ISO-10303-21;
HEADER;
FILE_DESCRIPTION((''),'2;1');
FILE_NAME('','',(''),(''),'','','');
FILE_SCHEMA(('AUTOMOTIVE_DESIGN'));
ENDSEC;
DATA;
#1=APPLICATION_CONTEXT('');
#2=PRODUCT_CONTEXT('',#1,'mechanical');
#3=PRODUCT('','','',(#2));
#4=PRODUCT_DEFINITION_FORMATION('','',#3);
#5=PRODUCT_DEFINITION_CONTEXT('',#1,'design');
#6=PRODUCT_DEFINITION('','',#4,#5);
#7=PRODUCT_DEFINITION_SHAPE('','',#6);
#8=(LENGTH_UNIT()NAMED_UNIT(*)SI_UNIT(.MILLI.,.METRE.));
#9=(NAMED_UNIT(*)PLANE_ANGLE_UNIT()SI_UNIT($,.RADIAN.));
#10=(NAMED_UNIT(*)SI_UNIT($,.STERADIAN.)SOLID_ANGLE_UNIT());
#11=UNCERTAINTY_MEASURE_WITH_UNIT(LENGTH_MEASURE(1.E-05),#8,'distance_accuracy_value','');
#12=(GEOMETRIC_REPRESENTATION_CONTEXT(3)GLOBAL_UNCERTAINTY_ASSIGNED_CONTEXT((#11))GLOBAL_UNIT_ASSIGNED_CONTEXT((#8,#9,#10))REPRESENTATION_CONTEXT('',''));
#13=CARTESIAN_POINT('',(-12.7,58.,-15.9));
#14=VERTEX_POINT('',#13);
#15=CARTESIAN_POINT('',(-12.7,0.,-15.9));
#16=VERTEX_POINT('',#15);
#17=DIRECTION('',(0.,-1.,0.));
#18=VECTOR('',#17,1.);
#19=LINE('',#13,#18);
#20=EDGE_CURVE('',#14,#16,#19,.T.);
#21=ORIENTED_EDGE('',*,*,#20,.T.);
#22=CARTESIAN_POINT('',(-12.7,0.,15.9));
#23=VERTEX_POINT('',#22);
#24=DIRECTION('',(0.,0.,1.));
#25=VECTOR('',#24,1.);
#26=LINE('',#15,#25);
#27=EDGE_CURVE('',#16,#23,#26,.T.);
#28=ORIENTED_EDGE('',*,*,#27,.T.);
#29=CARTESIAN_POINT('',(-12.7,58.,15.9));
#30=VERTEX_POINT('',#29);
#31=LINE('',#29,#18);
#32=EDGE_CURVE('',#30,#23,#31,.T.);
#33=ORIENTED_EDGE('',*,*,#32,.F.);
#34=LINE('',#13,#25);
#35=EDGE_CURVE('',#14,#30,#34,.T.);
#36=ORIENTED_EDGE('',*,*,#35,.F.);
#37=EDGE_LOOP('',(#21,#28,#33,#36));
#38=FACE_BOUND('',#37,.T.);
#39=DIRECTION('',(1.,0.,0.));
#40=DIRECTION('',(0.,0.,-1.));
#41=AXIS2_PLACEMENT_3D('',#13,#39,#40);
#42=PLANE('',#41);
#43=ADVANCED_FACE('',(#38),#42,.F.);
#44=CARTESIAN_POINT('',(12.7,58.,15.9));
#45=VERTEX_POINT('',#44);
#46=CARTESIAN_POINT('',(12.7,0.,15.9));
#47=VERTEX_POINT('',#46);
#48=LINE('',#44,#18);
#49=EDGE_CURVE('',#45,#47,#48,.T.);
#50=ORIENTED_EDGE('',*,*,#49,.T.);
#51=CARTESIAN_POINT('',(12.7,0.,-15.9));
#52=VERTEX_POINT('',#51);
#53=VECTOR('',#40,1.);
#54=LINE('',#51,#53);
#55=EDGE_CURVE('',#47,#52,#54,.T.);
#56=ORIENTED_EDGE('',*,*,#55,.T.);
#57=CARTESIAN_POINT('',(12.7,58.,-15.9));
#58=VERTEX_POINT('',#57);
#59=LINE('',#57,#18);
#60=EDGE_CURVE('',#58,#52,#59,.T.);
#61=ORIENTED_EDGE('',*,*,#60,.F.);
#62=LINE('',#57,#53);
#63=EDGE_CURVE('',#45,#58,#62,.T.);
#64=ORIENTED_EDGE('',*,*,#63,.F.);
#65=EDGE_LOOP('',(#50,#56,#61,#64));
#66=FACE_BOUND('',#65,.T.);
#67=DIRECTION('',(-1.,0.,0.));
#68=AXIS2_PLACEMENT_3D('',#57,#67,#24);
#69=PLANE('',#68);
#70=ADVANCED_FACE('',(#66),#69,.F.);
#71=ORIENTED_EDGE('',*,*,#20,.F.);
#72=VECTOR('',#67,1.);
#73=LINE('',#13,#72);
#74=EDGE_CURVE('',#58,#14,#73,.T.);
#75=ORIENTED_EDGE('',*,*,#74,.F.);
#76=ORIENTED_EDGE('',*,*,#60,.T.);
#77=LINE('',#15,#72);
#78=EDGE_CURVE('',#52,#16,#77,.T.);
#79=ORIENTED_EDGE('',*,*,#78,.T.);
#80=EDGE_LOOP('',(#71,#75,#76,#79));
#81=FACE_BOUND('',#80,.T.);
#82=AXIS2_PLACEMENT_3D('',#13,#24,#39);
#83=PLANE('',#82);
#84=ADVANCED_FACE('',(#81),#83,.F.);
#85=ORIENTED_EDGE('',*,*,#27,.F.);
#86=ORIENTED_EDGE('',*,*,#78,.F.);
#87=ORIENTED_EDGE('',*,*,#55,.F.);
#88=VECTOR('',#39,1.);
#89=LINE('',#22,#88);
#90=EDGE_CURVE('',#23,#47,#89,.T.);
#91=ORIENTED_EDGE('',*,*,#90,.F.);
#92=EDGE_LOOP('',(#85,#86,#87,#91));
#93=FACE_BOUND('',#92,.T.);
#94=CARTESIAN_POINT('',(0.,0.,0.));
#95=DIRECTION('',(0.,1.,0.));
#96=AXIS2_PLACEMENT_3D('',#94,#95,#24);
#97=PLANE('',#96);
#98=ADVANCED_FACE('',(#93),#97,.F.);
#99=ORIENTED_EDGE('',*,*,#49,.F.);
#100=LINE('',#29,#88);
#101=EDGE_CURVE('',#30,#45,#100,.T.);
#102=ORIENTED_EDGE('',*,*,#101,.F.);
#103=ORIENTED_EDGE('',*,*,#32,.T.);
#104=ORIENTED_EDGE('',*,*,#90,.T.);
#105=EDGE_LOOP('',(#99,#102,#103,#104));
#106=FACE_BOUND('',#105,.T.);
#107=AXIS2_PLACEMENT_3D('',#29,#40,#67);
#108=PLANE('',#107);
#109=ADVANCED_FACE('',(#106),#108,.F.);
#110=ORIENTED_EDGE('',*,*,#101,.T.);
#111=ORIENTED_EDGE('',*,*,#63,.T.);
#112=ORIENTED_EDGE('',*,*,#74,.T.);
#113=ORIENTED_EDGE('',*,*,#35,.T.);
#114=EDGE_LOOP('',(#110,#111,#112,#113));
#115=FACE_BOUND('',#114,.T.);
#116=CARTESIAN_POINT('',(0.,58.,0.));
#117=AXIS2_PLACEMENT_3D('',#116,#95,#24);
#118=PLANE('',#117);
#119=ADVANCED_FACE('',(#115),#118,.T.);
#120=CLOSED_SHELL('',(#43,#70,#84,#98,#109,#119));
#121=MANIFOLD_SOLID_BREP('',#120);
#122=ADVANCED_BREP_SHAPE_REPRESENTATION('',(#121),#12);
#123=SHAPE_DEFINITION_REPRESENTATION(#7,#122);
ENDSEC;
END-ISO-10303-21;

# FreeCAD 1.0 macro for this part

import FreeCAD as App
import Part
import Sketcher


def add_polygon(sketch, points):
    """Adds a closed chain of lines whose ends are joined by coincident constraints."""
    first, n = sketch.GeometryCount, len(points)
    for a, b in zip(points, points[1:] + points[:1]):
        sketch.addGeometry(Part.LineSegment(App.Vector(*a, 0), App.Vector(*b, 0)), False)
    for i in range(n):
        sketch.addConstraint(Sketcher.Constraint("Coincident", first + i, 2, first + (i + 1) % n, 1))

doc = App.newDocument("Part")
body = doc.addObject("PartDesign::Body", "Body")

# Sketch on XZ plane
sketch1 = body.newObject("Sketcher::SketchObject", "Sketch")
sketch1.AttachmentSupport = (doc.getObject("XZ_Plane"), [""])
sketch1.MapMode = "FlatFace"
add_polygon(sketch1, [(-13, -16), (-13, 16), (13, 16), (13, -16)])  # lines 0-3
sketch1.addConstraint(Sketcher.Constraint("Vertical", 0))
sketch1.addConstraint(Sketcher.Constraint("Horizontal", 1))
sketch1.addConstraint(Sketcher.Constraint("Vertical", 2))
sketch1.addConstraint(Sketcher.Constraint("Horizontal", 3))
sketch1.addConstraint(Sketcher.Constraint("Symmetric", 0, 2, 2, 2, -1, 1))
sketch1.addConstraint(Sketcher.Constraint("DistanceX", 1, 1, 1, 2, 25.4))
sketch1.addConstraint(Sketcher.Constraint("DistanceY", 0, 1, 0, 2, 31.8))
pad1 = body.newObject("PartDesign::Pad", "Pad")
pad1.Profile = sketch1
pad1.Length = 58
pad1.Reversed = True

doc.recompute()
